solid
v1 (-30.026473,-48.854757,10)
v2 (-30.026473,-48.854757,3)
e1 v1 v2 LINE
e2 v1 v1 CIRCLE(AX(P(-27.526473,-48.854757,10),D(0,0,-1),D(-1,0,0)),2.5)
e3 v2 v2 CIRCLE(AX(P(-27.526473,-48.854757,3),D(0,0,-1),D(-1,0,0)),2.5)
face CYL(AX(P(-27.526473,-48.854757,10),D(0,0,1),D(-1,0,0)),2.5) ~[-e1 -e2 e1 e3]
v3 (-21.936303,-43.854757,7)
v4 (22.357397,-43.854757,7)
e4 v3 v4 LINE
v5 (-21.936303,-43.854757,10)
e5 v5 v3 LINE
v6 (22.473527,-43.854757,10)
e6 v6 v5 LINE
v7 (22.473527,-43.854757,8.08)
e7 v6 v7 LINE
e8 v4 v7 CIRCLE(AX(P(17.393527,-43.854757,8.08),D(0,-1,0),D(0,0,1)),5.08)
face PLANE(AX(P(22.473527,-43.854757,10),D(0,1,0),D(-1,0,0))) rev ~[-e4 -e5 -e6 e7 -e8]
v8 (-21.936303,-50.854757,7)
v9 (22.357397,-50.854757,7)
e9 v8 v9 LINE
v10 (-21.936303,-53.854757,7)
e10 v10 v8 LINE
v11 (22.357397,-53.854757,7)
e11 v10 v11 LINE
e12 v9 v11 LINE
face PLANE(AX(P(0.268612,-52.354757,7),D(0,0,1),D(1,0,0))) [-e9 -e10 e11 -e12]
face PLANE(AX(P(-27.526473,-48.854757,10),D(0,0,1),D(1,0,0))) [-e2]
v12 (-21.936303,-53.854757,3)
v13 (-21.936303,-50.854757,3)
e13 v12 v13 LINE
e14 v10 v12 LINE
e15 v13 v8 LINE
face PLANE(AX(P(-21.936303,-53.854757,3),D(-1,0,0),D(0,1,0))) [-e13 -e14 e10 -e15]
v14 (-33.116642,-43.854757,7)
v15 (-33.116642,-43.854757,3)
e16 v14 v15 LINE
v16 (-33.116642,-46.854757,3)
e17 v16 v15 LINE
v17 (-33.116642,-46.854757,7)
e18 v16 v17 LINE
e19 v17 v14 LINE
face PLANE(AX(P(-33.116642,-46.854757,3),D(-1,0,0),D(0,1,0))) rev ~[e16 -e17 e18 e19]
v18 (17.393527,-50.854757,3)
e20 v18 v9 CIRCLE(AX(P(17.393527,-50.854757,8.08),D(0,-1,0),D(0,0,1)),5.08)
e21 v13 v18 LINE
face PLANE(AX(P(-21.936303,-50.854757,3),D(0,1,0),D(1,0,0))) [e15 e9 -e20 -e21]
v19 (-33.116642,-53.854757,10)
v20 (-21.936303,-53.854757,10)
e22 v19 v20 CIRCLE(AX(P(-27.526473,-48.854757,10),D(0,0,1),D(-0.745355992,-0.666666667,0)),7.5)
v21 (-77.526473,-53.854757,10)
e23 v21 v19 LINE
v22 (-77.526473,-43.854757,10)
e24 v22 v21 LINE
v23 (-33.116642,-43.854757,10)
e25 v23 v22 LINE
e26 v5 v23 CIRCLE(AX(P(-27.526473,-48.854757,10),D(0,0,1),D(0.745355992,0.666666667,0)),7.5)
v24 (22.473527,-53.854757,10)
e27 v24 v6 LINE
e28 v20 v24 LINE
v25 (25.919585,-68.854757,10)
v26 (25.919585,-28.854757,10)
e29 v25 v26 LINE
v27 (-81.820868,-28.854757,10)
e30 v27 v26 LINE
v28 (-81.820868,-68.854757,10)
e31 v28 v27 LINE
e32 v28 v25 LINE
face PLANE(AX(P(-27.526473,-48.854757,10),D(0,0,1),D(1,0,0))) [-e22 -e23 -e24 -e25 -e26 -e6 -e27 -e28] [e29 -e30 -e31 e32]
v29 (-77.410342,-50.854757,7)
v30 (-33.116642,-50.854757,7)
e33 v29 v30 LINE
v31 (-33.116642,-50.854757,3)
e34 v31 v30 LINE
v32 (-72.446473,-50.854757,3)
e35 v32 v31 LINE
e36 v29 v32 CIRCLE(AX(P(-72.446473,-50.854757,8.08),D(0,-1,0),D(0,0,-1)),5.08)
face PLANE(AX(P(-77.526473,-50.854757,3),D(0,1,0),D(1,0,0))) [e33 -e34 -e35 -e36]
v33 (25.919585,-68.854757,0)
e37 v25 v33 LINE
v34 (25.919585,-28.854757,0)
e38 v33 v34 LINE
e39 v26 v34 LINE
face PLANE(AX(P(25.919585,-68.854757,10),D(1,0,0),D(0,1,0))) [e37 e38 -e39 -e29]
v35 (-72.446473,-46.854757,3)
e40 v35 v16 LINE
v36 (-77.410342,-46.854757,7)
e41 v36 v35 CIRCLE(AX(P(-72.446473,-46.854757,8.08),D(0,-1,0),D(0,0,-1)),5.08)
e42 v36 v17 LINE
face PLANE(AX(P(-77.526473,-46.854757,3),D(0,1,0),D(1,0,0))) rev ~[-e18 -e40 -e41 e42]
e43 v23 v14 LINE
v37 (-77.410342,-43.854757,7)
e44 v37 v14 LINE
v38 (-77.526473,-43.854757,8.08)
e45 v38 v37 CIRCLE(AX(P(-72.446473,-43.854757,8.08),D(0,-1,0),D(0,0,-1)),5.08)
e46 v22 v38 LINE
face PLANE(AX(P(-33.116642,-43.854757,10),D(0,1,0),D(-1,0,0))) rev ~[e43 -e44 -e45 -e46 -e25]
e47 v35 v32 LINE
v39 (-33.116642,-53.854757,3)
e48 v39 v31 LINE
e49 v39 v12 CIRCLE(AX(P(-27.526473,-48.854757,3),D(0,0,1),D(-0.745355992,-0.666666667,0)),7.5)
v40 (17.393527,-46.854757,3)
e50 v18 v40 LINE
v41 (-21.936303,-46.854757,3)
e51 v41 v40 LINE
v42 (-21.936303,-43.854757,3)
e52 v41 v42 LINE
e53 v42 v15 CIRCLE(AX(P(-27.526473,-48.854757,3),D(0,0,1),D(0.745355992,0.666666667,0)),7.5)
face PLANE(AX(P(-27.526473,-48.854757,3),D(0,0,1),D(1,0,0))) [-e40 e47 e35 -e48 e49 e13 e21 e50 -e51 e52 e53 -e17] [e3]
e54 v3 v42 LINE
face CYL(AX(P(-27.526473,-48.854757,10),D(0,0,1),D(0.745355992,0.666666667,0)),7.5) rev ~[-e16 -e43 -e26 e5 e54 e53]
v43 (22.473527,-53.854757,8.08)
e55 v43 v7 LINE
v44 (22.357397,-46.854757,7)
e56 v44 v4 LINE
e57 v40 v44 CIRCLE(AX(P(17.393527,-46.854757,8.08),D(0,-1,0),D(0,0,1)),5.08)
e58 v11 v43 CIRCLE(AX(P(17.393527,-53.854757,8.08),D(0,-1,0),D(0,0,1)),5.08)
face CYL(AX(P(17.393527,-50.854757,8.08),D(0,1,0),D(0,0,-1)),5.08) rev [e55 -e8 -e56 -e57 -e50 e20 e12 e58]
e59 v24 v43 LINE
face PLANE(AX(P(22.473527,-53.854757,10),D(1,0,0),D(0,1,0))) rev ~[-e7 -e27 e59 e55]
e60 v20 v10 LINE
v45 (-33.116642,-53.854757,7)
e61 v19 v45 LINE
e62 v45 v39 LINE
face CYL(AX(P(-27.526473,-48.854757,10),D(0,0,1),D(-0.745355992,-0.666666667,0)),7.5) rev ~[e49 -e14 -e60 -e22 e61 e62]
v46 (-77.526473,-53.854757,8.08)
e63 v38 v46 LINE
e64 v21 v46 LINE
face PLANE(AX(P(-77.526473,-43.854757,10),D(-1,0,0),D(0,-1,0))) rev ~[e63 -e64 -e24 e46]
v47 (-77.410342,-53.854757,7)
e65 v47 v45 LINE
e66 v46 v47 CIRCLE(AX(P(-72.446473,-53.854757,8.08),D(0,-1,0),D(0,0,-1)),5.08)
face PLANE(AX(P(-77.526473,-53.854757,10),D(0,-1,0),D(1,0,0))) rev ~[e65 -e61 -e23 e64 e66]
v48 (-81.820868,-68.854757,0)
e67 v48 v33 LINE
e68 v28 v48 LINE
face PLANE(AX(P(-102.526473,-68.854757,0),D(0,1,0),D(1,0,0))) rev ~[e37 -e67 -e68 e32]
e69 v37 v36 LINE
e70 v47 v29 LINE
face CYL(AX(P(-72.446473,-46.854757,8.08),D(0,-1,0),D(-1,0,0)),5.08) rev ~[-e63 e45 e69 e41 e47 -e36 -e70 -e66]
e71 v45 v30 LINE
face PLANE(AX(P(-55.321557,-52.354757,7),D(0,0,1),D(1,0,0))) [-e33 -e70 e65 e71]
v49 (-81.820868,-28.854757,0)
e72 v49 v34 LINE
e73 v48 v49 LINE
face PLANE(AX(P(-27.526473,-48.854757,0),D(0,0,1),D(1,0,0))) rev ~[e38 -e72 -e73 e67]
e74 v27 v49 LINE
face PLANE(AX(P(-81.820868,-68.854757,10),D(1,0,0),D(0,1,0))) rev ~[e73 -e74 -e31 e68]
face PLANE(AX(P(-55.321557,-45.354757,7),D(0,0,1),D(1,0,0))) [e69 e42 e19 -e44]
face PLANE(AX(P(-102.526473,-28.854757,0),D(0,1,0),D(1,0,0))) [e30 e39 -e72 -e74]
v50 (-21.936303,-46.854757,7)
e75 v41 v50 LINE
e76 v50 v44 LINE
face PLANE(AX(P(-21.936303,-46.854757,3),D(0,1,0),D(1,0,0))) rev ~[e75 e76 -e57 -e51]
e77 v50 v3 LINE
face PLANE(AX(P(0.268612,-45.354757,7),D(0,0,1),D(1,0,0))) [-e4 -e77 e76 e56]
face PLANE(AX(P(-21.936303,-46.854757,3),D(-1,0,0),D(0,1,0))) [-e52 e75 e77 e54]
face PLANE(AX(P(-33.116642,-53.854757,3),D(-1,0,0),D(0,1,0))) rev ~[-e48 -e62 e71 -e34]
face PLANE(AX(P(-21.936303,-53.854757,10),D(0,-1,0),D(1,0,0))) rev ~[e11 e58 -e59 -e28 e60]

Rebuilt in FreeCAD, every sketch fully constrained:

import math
import FreeCAD as App
import Part
import Sketcher


def edges_at(feature, points):
    """Names of the edges that pass closest to the given points."""
    edges = feature.Shape.Edges
    near = lambda p: min(range(len(edges)), key=lambda i: edges[i].distToShape(Part.Vertex(*p))[0])
    return sorted({f"Edge{near(p) + 1}" for p in points})

doc = App.newDocument("Part")
params = doc.addObject("Spreadsheet::Sheet", "Params")
for row, (alias, value) in enumerate([
    ("sketch1_width", "150 mm"),
    ("sketch1_height", "40 mm"),
    ("pad1_length", "10 mm"),
    ("sketch2_diameter", "5 mm"),
    ("sketch2_radius", "7.5 mm"),
    ("sketch2_height", "10 mm"),
    ("pocket1_length", "7 mm"),
    ("sketch3_height", "3 mm"),
    ("pad2_length", "4 mm"),
    ("fillet_radius", "5.08 mm"),
    ("sketch4_height", "40 mm"),
    ("pocket2_length", "25.4 mm"),
], start=1):
    params.set(f"A{row}", alias)
    params.set(f"B{row}", "=" + value)
    params.setAlias(f"B{row}", alias)

body = doc.addObject("PartDesign::Body", "Body")

sketch1 = doc.addObject("Sketcher::SketchObject", "Sketch")
body.addObject(sketch1)
sketch1.AttachmentSupport = (doc.XY_Plane, [""])
sketch1.MapMode = "FlatFace"
sketch1.addGeometry([
    Part.LineSegment(App.Vector(-103, -29, 0), App.Vector(-103, -69, 0)),
    Part.LineSegment(App.Vector(-103, -69, 0), App.Vector(47, -69, 0)),
    Part.LineSegment(App.Vector(47, -69, 0), App.Vector(47, -29, 0)),
    Part.LineSegment(App.Vector(47, -29, 0), App.Vector(-103, -29, 0)),
], False)
sketch1.addConstraint([
    Sketcher.Constraint("Coincident", 0, 2, 1, 1),
    Sketcher.Constraint("Coincident", 1, 2, 2, 1),
    Sketcher.Constraint("Coincident", 2, 2, 3, 1),
    Sketcher.Constraint("Coincident", 3, 2, 0, 1),
    Sketcher.Constraint("Vertical", 0),
    Sketcher.Constraint("Horizontal", 1),
    Sketcher.Constraint("Vertical", 2),
    Sketcher.Constraint("Horizontal", 3),
    Sketcher.Constraint("DistanceX", 1, 1, 1, 2, 150.0),
    Sketcher.Constraint("DistanceY", 0, 2, 0, 1, 40.0),
    Sketcher.Constraint("DistanceX", 0, 2, -1, 1, 102.526473),
    Sketcher.Constraint("DistanceY", 0, 2, -1, 1, 68.854757),
])
sketch1.setExpression("Constraints[8]", "Params.sketch1_width")
sketch1.setExpression("Constraints[9]", "Params.sketch1_height")
pad1 = doc.addObject("PartDesign::Pad", "Pad")
body.addObject(pad1)
pad1.Profile = sketch1
pad1.setExpression("Length", "Params.pad1_length")

sketch2 = doc.addObject("Sketcher::SketchObject", "Sketch001")
body.addObject(sketch2)
sketch2.AttachmentSupport = (doc.XY_Plane, [""])
sketch2.MapMode = "FlatFace"
sketch2.AttachmentOffset = App.Placement(App.Vector(0, 0, 10), App.Rotation())
sketch2.addGeometry([
    Part.LineSegment(App.Vector(-77.5, -43.9, 0), App.Vector(-77.5, -53.9, 0)),
    Part.LineSegment(App.Vector(-77.5, -53.9, 0), App.Vector(-33.1, -53.9, 0)),
    Part.ArcOfCircle(Part.Circle(App.Vector(-27.5, -48.9, 0), App.Vector(0, 0, 1), 7.5), math.radians(-138), math.radians(-42)),
    Part.LineSegment(App.Vector(-21.9, -53.9, 0), App.Vector(22.5, -53.9, 0)),
    Part.LineSegment(App.Vector(22.5, -53.9, 0), App.Vector(22.5, -43.9, 0)),
    Part.LineSegment(App.Vector(22.5, -43.9, 0), App.Vector(-21.9, -43.9, 0)),
    Part.ArcOfCircle(Part.Circle(App.Vector(-27.5, -48.9, 0), App.Vector(0, 0, 1), 7.5), math.radians(42), math.radians(138)),
    Part.LineSegment(App.Vector(-33.1, -43.9, 0), App.Vector(-77.5, -43.9, 0)),
    Part.Circle(App.Vector(-27.5, -48.9, 0), App.Vector(0, 0, 1), 2.5),
], False)
sketch2.addConstraint([
    Sketcher.Constraint("Coincident", 0, 2, 1, 1),
    Sketcher.Constraint("Coincident", 1, 2, 2, 1),
    Sketcher.Constraint("Coincident", 2, 2, 3, 1),
    Sketcher.Constraint("Coincident", 3, 2, 4, 1),
    Sketcher.Constraint("Coincident", 4, 2, 5, 1),
    Sketcher.Constraint("Coincident", 5, 2, 6, 1),
    Sketcher.Constraint("Coincident", 6, 2, 7, 1),
    Sketcher.Constraint("Coincident", 7, 2, 0, 1),
    Sketcher.Constraint("Vertical", 0),
    Sketcher.Constraint("Horizontal", 1),
    Sketcher.Constraint("Horizontal", 3),
    Sketcher.Constraint("Vertical", 4),
    Sketcher.Constraint("Horizontal", 5),
    Sketcher.Constraint("Horizontal", 7),
    Sketcher.Constraint("Coincident", 6, 3, 2, 3),
    Sketcher.Constraint("Coincident", 8, 3, 2, 3),
    Sketcher.Constraint("Equal", 2, 6),
    Sketcher.Constraint("Horizontal", 1, 2, 2, 2),
    Sketcher.Constraint("Horizontal", 5, 2, 6, 2),
    Sketcher.Constraint("Vertical", 2, 2, 5, 2),
    Sketcher.Constraint("Equal", 1, 3),
    Sketcher.Constraint("Diameter", 8, 5.0),
    Sketcher.Constraint("Radius", 2, 7.5),
    Sketcher.Constraint("DistanceY", 0, 2, 0, 1, 10.0),
    Sketcher.Constraint("DistanceX", 0, 2, 2, 3, 50.0),
    Sketcher.Constraint("DistanceX", 2, 3, -1, 1, 27.526473),
    Sketcher.Constraint("DistanceY", 2, 3, -1, 1, 48.854757),
])
sketch2.setExpression("Constraints[21]", "Params.sketch2_diameter")
sketch2.setExpression("Constraints[22]", "Params.sketch2_radius")
sketch2.setExpression("Constraints[23]", "Params.sketch2_height")
pocket1 = doc.addObject("PartDesign::Pocket", "Pocket")
body.addObject(pocket1)
pocket1.Profile = sketch2
pocket1.setExpression("Length", "Params.pocket1_length")

sketch3 = doc.addObject("Sketcher::SketchObject", "Sketch002")
body.addObject(sketch3)
sketch3.AttachmentSupport = (doc.XY_Plane, [""])
sketch3.MapMode = "FlatFace"
sketch3.AttachmentOffset = App.Placement(App.Vector(0, 0, 3), App.Rotation())
sketch3.addGeometry([
    Part.LineSegment(App.Vector(-77.5, -43.9, 0), App.Vector(-77.5, -46.9, 0)),
    Part.LineSegment(App.Vector(-77.5, -46.9, 0), App.Vector(-33.1, -46.9, 0)),
    Part.LineSegment(App.Vector(-33.1, -46.9, 0), App.Vector(-33.1, -43.9, 0)),
    Part.LineSegment(App.Vector(-33.1, -43.9, 0), App.Vector(-77.5, -43.9, 0)),
    Part.LineSegment(App.Vector(-77.5, -50.9, 0), App.Vector(-77.5, -53.9, 0)),
    Part.LineSegment(App.Vector(-77.5, -53.9, 0), App.Vector(-33.1, -53.9, 0)),
    Part.LineSegment(App.Vector(-33.1, -53.9, 0), App.Vector(-33.1, -50.9, 0)),
    Part.LineSegment(App.Vector(-33.1, -50.9, 0), App.Vector(-77.5, -50.9, 0)),
    Part.LineSegment(App.Vector(-21.9, -50.9, 0), App.Vector(-21.9, -53.9, 0)),
    Part.LineSegment(App.Vector(-21.9, -53.9, 0), App.Vector(22.5, -53.9, 0)),
    Part.LineSegment(App.Vector(22.5, -53.9, 0), App.Vector(22.5, -50.9, 0)),
    Part.LineSegment(App.Vector(22.5, -50.9, 0), App.Vector(-21.9, -50.9, 0)),
    Part.LineSegment(App.Vector(-21.9, -43.9, 0), App.Vector(-21.9, -46.9, 0)),
    Part.LineSegment(App.Vector(-21.9, -46.9, 0), App.Vector(22.5, -46.9, 0)),
    Part.LineSegment(App.Vector(22.5, -46.9, 0), App.Vector(22.5, -43.9, 0)),
    Part.LineSegment(App.Vector(22.5, -43.9, 0), App.Vector(-21.9, -43.9, 0)),
], False)
sketch3.addConstraint([
    Sketcher.Constraint("Coincident", 0, 2, 1, 1),
    Sketcher.Constraint("Coincident", 1, 2, 2, 1),
    Sketcher.Constraint("Coincident", 2, 2, 3, 1),
    Sketcher.Constraint("Coincident", 3, 2, 0, 1),
    Sketcher.Constraint("Coincident", 4, 2, 5, 1),
    Sketcher.Constraint("Coincident", 5, 2, 6, 1),
    Sketcher.Constraint("Coincident", 6, 2, 7, 1),
    Sketcher.Constraint("Coincident", 7, 2, 4, 1),
    Sketcher.Constraint("Coincident", 8, 2, 9, 1),
    Sketcher.Constraint("Coincident", 9, 2, 10, 1),
    Sketcher.Constraint("Coincident", 10, 2, 11, 1),
    Sketcher.Constraint("Coincident", 11, 2, 8, 1),
    Sketcher.Constraint("Coincident", 12, 2, 13, 1),
    Sketcher.Constraint("Coincident", 13, 2, 14, 1),
    Sketcher.Constraint("Coincident", 14, 2, 15, 1),
    Sketcher.Constraint("Coincident", 15, 2, 12, 1),
    Sketcher.Constraint("Vertical", 0),
    Sketcher.Constraint("Horizontal", 1),
    Sketcher.Constraint("Vertical", 2),
    Sketcher.Constraint("Horizontal", 3),
    Sketcher.Constraint("Vertical", 4),
    Sketcher.Constraint("Horizontal", 5),
    Sketcher.Constraint("Vertical", 6),
    Sketcher.Constraint("Horizontal", 7),
    Sketcher.Constraint("Vertical", 8),
    Sketcher.Constraint("Horizontal", 9),
    Sketcher.Constraint("Vertical", 10),
    Sketcher.Constraint("Horizontal", 11),
    Sketcher.Constraint("Vertical", 12),
    Sketcher.Constraint("Horizontal", 13),
    Sketcher.Constraint("Vertical", 14),
    Sketcher.Constraint("Horizontal", 15),
    Sketcher.Constraint("Horizontal", 5, 2, 8, 2),
    Sketcher.Constraint("Horizontal", 7, 2, 10, 2),
    Sketcher.Constraint("Horizontal", 1, 2, 12, 2),
    Sketcher.Constraint("Horizontal", 3, 2, 14, 2),
    Sketcher.Constraint("Vertical", 3, 2, 4, 2),
    Sketcher.Constraint("Vertical", 2, 2, 5, 2),
    Sketcher.Constraint("Vertical", 11, 2, 12, 2),
    Sketcher.Constraint("Vertical", 10, 2, 13, 2),
    Sketcher.Constraint("Equal", 7, 9),
    Sketcher.Constraint("Equal", 2, 4),
    Sketcher.Constraint("DistanceY", 0, 2, 0, 1, 3.0),
    Sketcher.Constraint("DistanceY", 4, 2, 0, 2, 7.0),
    Sketcher.Constraint("DistanceX", 1, 1, 1, 2, 44.40983),
    Sketcher.Constraint("DistanceX", 5, 2, 8, 2, 11.18034),
    Sketcher.Constraint("DistanceX", 0, 2, -1, 1, 77.526473),
    Sketcher.Constraint("DistanceY", 0, 2, -1, 1, 46.854757),
])
sketch3.setExpression("Constraints[42]", "Params.sketch3_height")
pad2 = doc.addObject("PartDesign::Pad", "Pad001")
body.addObject(pad2)
pad2.Profile = sketch3
pad2.setExpression("Length", "Params.pad2_length")
doc.recompute()

fillet = doc.addObject("PartDesign::Fillet", "Fillet")
body.addObject(fillet)
fillet.Base = (pad2, edges_at(pad2, [(-77.526, -48.855, 3), (22.474, -48.855, 3)]))
fillet.setExpression("Radius", "Params.fillet_radius")

sketch4 = doc.addObject("Sketcher::SketchObject", "Sketch003")
body.addObject(sketch4)
sketch4.AttachmentSupport = (doc.XY_Plane, [""])
sketch4.MapMode = "FlatFace"
sketch4.AttachmentOffset = App.Placement(App.Vector(0, 0, 10), App.Rotation())
sketch4.addGeometry([
    Part.LineSegment(App.Vector(-103, -29, 0), App.Vector(-103, -69, 0)),
    Part.LineSegment(App.Vector(-103, -69, 0), App.Vector(-82, -69, 0)),
    Part.LineSegment(App.Vector(-82, -69, 0), App.Vector(-82, -29, 0)),
    Part.LineSegment(App.Vector(-82, -29, 0), App.Vector(-103, -29, 0)),
    Part.LineSegment(App.Vector(26, -29, 0), App.Vector(26, -69, 0)),
    Part.LineSegment(App.Vector(26, -69, 0), App.Vector(47, -69, 0)),
    Part.LineSegment(App.Vector(47, -69, 0), App.Vector(47, -29, 0)),
    Part.LineSegment(App.Vector(47, -29, 0), App.Vector(26, -29, 0)),
], False)
sketch4.addConstraint([
    Sketcher.Constraint("Coincident", 0, 2, 1, 1),
    Sketcher.Constraint("Coincident", 1, 2, 2, 1),
    Sketcher.Constraint("Coincident", 2, 2, 3, 1),
    Sketcher.Constraint("Coincident", 3, 2, 0, 1),
    Sketcher.Constraint("Coincident", 4, 2, 5, 1),
    Sketcher.Constraint("Coincident", 5, 2, 6, 1),
    Sketcher.Constraint("Coincident", 6, 2, 7, 1),
    Sketcher.Constraint("Coincident", 7, 2, 4, 1),
    Sketcher.Constraint("Vertical", 0),
    Sketcher.Constraint("Horizontal", 1),
    Sketcher.Constraint("Vertical", 2),
    Sketcher.Constraint("Horizontal", 3),
    Sketcher.Constraint("Vertical", 4),
    Sketcher.Constraint("Horizontal", 5),
    Sketcher.Constraint("Vertical", 6),
    Sketcher.Constraint("Horizontal", 7),
    Sketcher.Constraint("Horizontal", 1, 2, 4, 2),
    Sketcher.Constraint("Horizontal", 3, 2, 6, 2),
    Sketcher.Constraint("DistanceY", 0, 2, 0, 1, 40.0),
    Sketcher.Constraint("DistanceX", 0, 2, 5, 2, 150.0),
    Sketcher.Constraint("DistanceX", 1, 1, 1, 2, 20.705605),
    Sketcher.Constraint("DistanceX", 5, 1, 5, 2, 21.553943),
    Sketcher.Constraint("DistanceX", 0, 2, -1, 1, 102.526473),
    Sketcher.Constraint("DistanceY", 0, 2, -1, 1, 68.854757),
])
sketch4.setExpression("Constraints[18]", "Params.sketch4_height")
pocket2 = doc.addObject("PartDesign::Pocket", "Pocket001")
body.addObject(pocket2)
pocket2.Profile = sketch4
pocket2.setExpression("Length", "Params.pocket2_length")

doc.recompute()
